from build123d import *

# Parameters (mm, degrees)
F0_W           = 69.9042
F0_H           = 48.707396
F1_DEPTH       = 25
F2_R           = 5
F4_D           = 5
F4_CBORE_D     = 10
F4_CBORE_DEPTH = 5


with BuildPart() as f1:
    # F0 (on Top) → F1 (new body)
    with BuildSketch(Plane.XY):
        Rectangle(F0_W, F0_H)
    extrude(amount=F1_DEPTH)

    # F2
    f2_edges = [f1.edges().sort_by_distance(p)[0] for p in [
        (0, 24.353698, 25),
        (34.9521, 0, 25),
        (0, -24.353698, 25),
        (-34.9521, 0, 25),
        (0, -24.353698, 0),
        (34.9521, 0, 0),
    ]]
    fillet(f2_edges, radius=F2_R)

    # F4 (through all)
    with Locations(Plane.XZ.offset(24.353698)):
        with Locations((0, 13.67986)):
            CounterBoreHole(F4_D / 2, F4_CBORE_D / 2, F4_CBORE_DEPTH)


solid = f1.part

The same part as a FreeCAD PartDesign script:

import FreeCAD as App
import Part
import Sketcher
from FreeCAD import Vector


def edges_at(feature, points):
    """Names of the edges that pass closest to the given points."""
    edges = feature.Shape.Edges
    near = lambda p: min(range(len(edges)), key=lambda i: edges[i].distToShape(Part.Vertex(*p))[0])
    return sorted({f"Edge{near(p) + 1}" for p in points})

doc = App.newDocument("Part")
body = doc.addObject("PartDesign::Body", "Body")

# Sketch on XY plane
sketch1 = body.newObject("Sketcher::SketchObject", "Sketch")
sketch1.AttachmentSupport = (doc.getObject("XY_Plane"), [""])
sketch1.MapMode = "FlatFace"
sketch1.addGeometry(Part.LineSegment(Vector(-35, 24, 0), Vector(-35, -24, 0)), False)
sketch1.addGeometry(Part.LineSegment(Vector(-35, -24, 0), Vector(35, -24, 0)), False)
sketch1.addGeometry(Part.LineSegment(Vector(35, -24, 0), Vector(35, 24, 0)), False)
sketch1.addGeometry(Part.LineSegment(Vector(35, 24, 0), Vector(-35, 24, 0)), False)
sketch1.addConstraint(Sketcher.Constraint("Coincident", 0, 2, 1, 1))
sketch1.addConstraint(Sketcher.Constraint("Coincident", 1, 2, 2, 1))
sketch1.addConstraint(Sketcher.Constraint("Coincident", 2, 2, 3, 1))
sketch1.addConstraint(Sketcher.Constraint("Coincident", 3, 2, 0, 1))
sketch1.addConstraint(Sketcher.Constraint("Vertical", 0))
sketch1.addConstraint(Sketcher.Constraint("Horizontal", 1))
sketch1.addConstraint(Sketcher.Constraint("Vertical", 2))
sketch1.addConstraint(Sketcher.Constraint("Horizontal", 3))
sketch1.addConstraint(Sketcher.Constraint("Symmetric", 0, 2, 2, 2, -1, 1))
sketch1.addConstraint(Sketcher.Constraint("DistanceX", 1, 1, 1, 2, 69.9042))
sketch1.addConstraint(Sketcher.Constraint("DistanceY", 0, 2, -1, 1, 24.353698))
pad1 = body.newObject("PartDesign::Pad", "Pad")
pad1.Profile = sketch1
pad1.Length = 25
doc.recompute()

fillet = body.newObject("PartDesign::Fillet", "Fillet")
fillet.Base = (pad1, edges_at(pad1, [
    (0, 24.354, 25),
    (34.952, 0, 25),
    (0, -24.354, 25),
    (-34.952, 0, 25),
    (0, -24.354, 0),
    (34.952, 0, 0),
]))
fillet.Radius = 5

# Sketch on XZ plane
sketch2 = body.newObject("Sketcher::SketchObject", "Sketch001")
sketch2.AttachmentSupport = (doc.getObject("XZ_Plane"), [""])
sketch2.MapMode = "FlatFace"
sketch2.AttachmentOffset = App.Placement(Vector(0, 0, 24.353698), App.Rotation())
sketch2.addGeometry(Part.Circle(Vector(0, 13.7, 0), Vector(0, 0, 1), 2.5), False)
sketch2.addConstraint(Sketcher.Constraint("PointOnObject", 0, 3, -2))
sketch2.addConstraint(Sketcher.Constraint("Diameter", 0, 5.0))
sketch2.addConstraint(Sketcher.Constraint("DistanceY", -1, 1, 0, 3, 13.67986))
doc.recompute()
hole = body.newObject("PartDesign::Hole", "Hole")
hole.Profile = sketch2
hole.ThreadType = "None"
hole.Diameter = 5
hole.DepthType = "ThroughAll"
hole.HoleCutType = "Counterbore"
hole.HoleCutDiameter = 10
hole.HoleCutDepth = 5

doc.recompute()
